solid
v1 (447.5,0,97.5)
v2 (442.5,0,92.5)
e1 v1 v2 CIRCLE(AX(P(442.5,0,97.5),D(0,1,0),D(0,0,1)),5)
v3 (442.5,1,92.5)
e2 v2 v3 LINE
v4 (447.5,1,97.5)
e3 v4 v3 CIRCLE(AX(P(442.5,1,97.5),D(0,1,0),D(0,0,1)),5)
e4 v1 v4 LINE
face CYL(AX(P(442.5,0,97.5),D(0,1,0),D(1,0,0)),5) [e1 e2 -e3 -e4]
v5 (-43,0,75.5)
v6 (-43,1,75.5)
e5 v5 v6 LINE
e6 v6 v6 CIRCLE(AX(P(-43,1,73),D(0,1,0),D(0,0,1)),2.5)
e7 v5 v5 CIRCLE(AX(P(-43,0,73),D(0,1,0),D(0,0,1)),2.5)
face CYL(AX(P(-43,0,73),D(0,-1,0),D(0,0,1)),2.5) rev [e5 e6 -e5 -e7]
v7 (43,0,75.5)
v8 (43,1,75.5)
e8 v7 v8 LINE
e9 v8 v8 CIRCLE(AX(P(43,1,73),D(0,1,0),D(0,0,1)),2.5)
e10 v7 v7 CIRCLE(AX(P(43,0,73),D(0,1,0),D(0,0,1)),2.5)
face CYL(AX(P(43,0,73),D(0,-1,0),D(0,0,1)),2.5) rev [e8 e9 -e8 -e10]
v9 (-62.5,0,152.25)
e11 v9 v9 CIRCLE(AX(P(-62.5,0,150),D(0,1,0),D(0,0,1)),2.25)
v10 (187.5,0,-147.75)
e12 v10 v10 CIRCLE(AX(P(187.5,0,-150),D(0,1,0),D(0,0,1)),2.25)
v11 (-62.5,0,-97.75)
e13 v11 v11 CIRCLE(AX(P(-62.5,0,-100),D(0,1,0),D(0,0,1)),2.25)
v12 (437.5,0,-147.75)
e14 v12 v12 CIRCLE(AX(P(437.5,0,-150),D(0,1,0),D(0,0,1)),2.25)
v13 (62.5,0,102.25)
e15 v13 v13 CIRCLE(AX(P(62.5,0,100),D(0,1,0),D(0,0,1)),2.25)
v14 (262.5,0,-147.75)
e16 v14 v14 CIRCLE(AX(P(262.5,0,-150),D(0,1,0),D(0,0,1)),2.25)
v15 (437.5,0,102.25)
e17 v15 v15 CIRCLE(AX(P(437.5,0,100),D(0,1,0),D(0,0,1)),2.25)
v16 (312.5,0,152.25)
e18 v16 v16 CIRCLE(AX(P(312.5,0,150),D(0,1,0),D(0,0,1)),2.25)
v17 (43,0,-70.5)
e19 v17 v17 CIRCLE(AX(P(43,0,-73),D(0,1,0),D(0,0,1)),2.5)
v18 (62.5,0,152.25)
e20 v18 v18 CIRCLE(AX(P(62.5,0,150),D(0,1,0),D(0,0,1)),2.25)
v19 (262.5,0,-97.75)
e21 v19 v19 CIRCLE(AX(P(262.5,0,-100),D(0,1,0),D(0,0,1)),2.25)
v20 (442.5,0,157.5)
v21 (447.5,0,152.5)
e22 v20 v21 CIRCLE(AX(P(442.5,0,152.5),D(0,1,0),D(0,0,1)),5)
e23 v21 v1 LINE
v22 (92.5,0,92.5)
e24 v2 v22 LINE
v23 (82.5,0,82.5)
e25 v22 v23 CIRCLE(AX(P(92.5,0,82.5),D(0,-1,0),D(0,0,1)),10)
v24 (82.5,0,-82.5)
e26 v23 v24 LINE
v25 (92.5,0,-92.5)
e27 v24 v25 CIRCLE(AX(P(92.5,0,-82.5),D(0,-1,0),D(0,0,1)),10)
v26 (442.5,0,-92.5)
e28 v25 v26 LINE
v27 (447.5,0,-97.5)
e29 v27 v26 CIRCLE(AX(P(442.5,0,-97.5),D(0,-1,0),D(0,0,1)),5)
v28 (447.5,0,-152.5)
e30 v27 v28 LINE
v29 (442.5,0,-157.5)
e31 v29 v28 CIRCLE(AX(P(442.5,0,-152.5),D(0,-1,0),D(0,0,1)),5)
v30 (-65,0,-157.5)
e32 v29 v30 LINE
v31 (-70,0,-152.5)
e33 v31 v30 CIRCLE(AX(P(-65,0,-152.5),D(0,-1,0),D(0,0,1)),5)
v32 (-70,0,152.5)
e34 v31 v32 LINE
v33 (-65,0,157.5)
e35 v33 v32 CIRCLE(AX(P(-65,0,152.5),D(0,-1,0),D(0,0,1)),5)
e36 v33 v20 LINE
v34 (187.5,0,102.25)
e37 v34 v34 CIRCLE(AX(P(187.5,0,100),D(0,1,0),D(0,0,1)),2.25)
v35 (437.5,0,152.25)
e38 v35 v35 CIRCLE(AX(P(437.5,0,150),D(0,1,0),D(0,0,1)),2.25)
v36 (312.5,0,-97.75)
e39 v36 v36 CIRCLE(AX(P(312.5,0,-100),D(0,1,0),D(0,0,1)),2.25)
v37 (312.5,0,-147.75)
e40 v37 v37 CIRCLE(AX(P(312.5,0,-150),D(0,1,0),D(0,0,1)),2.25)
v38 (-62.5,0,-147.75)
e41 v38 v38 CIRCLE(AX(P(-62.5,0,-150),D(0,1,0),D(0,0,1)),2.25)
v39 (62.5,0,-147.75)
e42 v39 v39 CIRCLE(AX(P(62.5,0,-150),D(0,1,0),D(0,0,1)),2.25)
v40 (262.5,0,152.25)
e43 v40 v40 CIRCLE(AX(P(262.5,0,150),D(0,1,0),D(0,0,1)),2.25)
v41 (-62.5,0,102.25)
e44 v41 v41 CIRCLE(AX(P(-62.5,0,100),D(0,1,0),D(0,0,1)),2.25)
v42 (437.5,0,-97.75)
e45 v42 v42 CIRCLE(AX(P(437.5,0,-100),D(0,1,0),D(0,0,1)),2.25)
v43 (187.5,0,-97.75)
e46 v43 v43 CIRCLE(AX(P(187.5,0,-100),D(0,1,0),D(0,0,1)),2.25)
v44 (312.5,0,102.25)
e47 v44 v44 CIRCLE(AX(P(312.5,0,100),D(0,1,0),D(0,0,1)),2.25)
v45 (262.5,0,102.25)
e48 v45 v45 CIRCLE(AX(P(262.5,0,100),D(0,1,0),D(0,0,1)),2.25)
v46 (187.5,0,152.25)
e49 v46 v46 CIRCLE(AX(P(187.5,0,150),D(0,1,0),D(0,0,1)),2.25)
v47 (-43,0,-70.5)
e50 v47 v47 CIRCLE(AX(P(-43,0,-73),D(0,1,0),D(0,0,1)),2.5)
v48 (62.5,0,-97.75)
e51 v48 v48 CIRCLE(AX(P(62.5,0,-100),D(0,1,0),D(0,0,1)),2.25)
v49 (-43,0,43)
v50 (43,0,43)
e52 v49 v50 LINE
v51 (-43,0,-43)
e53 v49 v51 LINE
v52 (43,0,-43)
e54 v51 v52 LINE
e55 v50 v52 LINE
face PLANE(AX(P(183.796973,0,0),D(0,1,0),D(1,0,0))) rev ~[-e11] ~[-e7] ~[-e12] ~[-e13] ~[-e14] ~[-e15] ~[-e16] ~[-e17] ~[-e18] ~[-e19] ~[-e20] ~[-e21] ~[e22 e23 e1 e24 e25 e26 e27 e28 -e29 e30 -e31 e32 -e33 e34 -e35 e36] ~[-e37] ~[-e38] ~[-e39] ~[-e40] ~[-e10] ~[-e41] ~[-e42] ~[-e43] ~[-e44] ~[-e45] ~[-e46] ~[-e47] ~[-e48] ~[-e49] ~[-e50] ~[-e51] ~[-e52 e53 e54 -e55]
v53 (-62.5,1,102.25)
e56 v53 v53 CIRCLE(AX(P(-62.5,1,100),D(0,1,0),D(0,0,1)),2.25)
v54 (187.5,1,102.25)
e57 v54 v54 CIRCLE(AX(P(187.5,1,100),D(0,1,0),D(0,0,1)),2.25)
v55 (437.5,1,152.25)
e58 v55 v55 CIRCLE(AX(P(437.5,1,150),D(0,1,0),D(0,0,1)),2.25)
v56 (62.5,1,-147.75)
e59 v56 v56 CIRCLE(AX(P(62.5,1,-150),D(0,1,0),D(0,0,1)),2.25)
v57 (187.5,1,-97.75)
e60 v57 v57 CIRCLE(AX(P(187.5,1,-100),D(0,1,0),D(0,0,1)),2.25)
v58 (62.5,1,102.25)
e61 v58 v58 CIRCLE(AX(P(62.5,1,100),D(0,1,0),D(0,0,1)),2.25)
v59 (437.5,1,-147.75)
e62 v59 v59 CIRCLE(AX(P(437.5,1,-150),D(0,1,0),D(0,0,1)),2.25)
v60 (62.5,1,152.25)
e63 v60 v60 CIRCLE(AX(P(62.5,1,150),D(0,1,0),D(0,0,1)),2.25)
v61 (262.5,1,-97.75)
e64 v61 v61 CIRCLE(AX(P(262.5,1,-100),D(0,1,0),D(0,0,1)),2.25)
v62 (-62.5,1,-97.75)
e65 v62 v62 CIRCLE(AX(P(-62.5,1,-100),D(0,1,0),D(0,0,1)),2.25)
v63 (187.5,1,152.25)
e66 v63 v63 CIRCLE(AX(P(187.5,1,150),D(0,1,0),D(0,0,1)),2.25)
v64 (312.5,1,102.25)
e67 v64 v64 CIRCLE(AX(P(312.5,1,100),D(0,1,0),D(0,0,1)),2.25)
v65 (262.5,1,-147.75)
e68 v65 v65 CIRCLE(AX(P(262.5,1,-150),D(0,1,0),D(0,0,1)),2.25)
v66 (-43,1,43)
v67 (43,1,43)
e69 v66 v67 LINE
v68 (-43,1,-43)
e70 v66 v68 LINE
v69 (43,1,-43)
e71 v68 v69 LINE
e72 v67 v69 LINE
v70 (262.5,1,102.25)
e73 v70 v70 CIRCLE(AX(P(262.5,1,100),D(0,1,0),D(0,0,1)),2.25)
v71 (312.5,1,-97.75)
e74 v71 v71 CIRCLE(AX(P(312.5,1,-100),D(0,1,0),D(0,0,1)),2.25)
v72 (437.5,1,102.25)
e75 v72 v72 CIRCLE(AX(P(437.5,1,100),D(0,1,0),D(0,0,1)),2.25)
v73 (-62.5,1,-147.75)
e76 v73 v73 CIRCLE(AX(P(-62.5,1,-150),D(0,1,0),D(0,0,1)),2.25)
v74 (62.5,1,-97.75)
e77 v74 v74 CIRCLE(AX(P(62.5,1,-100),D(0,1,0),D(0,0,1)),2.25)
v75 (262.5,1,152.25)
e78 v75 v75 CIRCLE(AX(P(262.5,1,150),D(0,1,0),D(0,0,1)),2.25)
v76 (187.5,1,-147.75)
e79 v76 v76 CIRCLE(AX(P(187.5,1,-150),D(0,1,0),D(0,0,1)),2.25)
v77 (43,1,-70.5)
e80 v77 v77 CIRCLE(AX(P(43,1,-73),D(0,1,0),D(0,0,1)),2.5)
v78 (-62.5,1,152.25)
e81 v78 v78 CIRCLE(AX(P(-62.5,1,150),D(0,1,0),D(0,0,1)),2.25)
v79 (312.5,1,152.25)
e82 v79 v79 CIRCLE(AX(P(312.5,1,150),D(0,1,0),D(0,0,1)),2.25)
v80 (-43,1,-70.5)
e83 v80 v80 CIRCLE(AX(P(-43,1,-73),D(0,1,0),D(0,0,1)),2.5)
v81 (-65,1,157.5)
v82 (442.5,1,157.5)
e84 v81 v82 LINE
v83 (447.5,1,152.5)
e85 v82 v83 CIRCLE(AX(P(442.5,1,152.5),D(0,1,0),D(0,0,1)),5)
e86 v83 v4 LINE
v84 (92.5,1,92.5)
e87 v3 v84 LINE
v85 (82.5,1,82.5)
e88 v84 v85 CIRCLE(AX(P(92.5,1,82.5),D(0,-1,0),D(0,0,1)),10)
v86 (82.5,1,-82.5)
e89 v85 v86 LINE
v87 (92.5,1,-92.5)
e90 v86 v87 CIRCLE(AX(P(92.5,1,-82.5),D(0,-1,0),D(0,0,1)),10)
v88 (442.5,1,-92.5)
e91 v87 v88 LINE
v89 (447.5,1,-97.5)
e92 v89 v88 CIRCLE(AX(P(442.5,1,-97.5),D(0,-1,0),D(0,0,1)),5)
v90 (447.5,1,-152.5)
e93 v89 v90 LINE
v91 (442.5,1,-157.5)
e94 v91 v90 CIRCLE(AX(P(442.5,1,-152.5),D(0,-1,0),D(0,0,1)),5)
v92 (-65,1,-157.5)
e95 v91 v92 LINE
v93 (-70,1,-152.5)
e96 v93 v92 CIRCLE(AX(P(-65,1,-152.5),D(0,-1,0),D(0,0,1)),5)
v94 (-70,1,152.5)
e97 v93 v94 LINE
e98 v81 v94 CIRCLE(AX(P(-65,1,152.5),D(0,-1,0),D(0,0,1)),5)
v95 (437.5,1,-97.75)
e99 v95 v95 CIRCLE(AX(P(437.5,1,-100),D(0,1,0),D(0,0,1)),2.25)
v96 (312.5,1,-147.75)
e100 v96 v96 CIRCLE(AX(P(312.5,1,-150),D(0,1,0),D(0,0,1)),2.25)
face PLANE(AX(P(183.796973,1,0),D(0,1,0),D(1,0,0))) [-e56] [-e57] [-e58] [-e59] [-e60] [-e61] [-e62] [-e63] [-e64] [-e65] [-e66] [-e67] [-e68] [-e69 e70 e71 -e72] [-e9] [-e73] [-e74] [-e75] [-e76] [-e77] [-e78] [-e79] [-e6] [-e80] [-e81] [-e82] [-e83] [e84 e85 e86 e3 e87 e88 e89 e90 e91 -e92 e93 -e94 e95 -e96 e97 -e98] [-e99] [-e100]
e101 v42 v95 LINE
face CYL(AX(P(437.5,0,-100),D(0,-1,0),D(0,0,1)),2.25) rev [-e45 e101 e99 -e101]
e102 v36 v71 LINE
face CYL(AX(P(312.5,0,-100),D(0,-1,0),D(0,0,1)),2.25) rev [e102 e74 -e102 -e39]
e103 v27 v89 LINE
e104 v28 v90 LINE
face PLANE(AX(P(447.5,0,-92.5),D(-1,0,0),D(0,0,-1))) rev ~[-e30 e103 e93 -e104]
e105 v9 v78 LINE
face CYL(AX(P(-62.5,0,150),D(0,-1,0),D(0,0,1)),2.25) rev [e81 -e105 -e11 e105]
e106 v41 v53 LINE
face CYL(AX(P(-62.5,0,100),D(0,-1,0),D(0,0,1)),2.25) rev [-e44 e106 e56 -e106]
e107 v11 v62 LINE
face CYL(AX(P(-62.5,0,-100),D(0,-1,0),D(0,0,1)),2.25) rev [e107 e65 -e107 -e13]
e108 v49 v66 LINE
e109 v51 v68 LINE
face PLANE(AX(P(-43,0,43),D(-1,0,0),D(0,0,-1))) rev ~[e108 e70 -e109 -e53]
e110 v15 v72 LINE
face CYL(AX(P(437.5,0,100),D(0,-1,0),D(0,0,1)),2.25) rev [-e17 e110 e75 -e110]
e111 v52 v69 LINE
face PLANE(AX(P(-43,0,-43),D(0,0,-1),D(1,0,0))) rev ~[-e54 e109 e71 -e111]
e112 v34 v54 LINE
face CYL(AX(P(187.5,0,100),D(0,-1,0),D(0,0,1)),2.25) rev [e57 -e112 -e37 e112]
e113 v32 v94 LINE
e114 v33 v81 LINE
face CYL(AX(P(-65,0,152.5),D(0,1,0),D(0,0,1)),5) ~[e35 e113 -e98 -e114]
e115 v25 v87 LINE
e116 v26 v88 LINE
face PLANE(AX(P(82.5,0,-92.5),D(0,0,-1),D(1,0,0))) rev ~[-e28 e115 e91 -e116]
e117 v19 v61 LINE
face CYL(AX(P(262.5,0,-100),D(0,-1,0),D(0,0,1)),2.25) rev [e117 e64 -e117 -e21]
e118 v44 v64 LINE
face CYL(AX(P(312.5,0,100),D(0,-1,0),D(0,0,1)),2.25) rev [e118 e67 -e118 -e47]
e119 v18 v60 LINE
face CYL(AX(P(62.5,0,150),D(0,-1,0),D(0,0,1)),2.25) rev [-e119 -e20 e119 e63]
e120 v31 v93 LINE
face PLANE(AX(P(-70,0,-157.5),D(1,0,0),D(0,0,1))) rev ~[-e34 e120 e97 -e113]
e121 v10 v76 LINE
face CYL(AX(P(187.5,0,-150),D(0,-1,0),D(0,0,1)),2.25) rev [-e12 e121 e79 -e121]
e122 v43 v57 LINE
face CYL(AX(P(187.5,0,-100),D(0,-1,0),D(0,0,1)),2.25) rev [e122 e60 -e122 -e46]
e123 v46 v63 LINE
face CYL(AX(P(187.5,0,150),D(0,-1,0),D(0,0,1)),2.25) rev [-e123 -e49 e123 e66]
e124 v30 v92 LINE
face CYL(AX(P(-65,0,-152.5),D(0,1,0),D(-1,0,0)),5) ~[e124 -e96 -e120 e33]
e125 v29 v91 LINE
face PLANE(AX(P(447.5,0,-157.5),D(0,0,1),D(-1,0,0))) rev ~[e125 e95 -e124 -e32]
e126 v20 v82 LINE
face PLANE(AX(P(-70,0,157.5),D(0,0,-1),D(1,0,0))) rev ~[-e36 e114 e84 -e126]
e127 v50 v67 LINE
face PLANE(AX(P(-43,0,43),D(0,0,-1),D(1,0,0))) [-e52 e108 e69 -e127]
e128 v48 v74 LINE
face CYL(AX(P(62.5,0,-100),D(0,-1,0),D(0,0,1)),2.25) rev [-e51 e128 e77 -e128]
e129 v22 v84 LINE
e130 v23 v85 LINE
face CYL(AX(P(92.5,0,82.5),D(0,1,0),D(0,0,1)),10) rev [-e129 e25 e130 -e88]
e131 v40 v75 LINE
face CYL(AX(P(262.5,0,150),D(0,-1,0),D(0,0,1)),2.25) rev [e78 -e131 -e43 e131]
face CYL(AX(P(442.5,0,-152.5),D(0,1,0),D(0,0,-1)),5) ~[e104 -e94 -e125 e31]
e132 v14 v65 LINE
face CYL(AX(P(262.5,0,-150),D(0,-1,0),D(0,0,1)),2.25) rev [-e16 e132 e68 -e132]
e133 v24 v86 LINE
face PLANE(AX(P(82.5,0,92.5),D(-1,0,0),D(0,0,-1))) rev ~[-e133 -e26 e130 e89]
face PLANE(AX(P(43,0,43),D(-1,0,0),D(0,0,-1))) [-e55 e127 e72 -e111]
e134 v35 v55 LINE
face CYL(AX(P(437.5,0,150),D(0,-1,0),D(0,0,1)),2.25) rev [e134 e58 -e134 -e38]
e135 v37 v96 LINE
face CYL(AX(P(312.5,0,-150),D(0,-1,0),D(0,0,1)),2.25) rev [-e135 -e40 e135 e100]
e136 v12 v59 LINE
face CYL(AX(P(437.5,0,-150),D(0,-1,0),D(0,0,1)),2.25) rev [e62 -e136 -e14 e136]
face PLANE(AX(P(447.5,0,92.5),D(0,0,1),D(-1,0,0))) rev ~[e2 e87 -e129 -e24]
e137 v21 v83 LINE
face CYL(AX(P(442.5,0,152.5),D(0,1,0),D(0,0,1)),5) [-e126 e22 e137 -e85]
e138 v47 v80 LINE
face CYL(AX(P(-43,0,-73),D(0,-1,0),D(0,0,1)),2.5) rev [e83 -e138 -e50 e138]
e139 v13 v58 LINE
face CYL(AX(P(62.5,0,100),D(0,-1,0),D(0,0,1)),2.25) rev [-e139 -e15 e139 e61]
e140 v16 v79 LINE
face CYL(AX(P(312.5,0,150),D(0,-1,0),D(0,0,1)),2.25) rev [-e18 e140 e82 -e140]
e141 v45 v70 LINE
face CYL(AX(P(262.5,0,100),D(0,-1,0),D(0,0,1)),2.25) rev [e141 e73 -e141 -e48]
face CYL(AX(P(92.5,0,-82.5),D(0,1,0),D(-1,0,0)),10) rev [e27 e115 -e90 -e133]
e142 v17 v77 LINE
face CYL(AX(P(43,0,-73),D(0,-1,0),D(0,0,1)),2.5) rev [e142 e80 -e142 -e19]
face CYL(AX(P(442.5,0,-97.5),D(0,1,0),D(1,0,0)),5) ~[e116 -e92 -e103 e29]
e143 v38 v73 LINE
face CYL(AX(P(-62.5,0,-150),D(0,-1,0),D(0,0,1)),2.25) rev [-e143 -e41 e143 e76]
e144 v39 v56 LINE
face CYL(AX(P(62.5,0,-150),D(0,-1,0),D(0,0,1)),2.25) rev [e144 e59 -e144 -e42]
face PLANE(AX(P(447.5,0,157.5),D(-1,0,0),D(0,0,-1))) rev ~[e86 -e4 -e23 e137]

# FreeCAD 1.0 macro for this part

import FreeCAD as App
import Part
import Sketcher
from FreeCAD import Vector
Q = App.Units.Quantity


def edges_at(feature, points):
    """Names of the edges that pass closest to the given points."""
    edges = feature.Shape.Edges
    near = lambda p: min(range(len(edges)), key=lambda i: edges[i].distToShape(Part.Vertex(*p))[0])
    return sorted({f"Edge{near(p) + 1}" for p in points})

doc = App.newDocument("Part")
body = doc.addObject("PartDesign::Body", "Body")

sketch1 = body.newObject("Sketcher::SketchObject", "Sketch")
sketch1.AttachmentSupport = (doc.getObject("XZ_Plane"), [""])
sketch1.MapMode = "FlatFace"
sketch1.addGeometry([
    Part.LineSegment(Vector(-70, 157.5, 0), Vector(447.5, 157.5, 0)),
    Part.LineSegment(Vector(447.5, 157.5, 0), Vector(447.5, 92.5, 0)),
    Part.LineSegment(Vector(447.5, 92.5, 0), Vector(82.5, 92.5, 0)),
    Part.LineSegment(Vector(82.5, 92.5, 0), Vector(82.5, -92.5, 0)),
    Part.LineSegment(Vector(82.5, -92.5, 0), Vector(447.5, -92.5, 0)),
    Part.LineSegment(Vector(447.5, -92.5, 0), Vector(447.5, -157.5, 0)),
    Part.LineSegment(Vector(447.5, -157.5, 0), Vector(-70, -157.5, 0)),
    Part.LineSegment(Vector(-70, -157.5, 0), Vector(-70, 157.5, 0)),
    Part.Circle(Vector(-62.5, 150, 0), Vector(0, 0, 1), 2.25),
    Part.Circle(Vector(-62.5, 100, 0), Vector(0, 0, 1), 2.25),
    Part.Circle(Vector(62.5, 150, 0), Vector(0, 0, 1), 2.25),
    Part.Circle(Vector(62.5, 100, 0), Vector(0, 0, 1), 2.25),
    Part.Circle(Vector(-43, 73, 0), Vector(0, 0, 1), 2.5),
    Part.Circle(Vector(43, 73, 0), Vector(0, 0, 1), 2.5),
    Part.Circle(Vector(187.5, 150, 0), Vector(0, 0, 1), 2.25),
    Part.Circle(Vector(262.5, 150, 0), Vector(0, 0, 1), 2.25),
    Part.Circle(Vector(312.5, 150, 0), Vector(0, 0, 1), 2.25),
    Part.Circle(Vector(187.5, 100, 0), Vector(0, 0, 1), 2.25),
    Part.Circle(Vector(262.5, 100, 0), Vector(0, 0, 1), 2.25),
    Part.Circle(Vector(312.5, 100, 0), Vector(0, 0, 1), 2.25),
    Part.Circle(Vector(437.5, 150, 0), Vector(0, 0, 1), 2.25),
    Part.Circle(Vector(437.5, 100, 0), Vector(0, 0, 1), 2.25),
    Part.LineSegment(Vector(43, 43, 0), Vector(-43, 43, 0)),
    Part.LineSegment(Vector(-43, 43, 0), Vector(-43, -43, 0)),
    Part.LineSegment(Vector(-43, -43, 0), Vector(43, -43, 0)),
    Part.LineSegment(Vector(43, -43, 0), Vector(43, 43, 0)),
    Part.Circle(Vector(-43, -73, 0), Vector(0, 0, 1), 2.5),
    Part.Circle(Vector(43, -73, 0), Vector(0, 0, 1), 2.5),
    Part.Circle(Vector(-62.5, -100, 0), Vector(0, 0, 1), 2.25),
    Part.Circle(Vector(-62.5, -150, 0), Vector(0, 0, 1), 2.25),
    Part.Circle(Vector(62.5, -100, 0), Vector(0, 0, 1), 2.25),
    Part.Circle(Vector(62.5, -150, 0), Vector(0, 0, 1), 2.25),
    Part.Circle(Vector(187.5, -100, 0), Vector(0, 0, 1), 2.25),
    Part.Circle(Vector(262.5, -100, 0), Vector(0, 0, 1), 2.25),
    Part.Circle(Vector(312.5, -100, 0), Vector(0, 0, 1), 2.25),
    Part.Circle(Vector(187.5, -150, 0), Vector(0, 0, 1), 2.25),
    Part.Circle(Vector(262.5, -150, 0), Vector(0, 0, 1), 2.25),
    Part.Circle(Vector(312.5, -150, 0), Vector(0, 0, 1), 2.25),
    Part.Circle(Vector(437.5, -100, 0), Vector(0, 0, 1), 2.25),
    Part.Circle(Vector(437.5, -150, 0), Vector(0, 0, 1), 2.25),
], False)
sketch1.addConstraint([
    Sketcher.Constraint("Coincident", 0, 2, 1, 1),
    Sketcher.Constraint("Coincident", 1, 2, 2, 1),
    Sketcher.Constraint("Coincident", 2, 2, 3, 1),
    Sketcher.Constraint("Coincident", 3, 2, 4, 1),
    Sketcher.Constraint("Coincident", 4, 2, 5, 1),
    Sketcher.Constraint("Coincident", 5, 2, 6, 1),
    Sketcher.Constraint("Coincident", 6, 2, 7, 1),
    Sketcher.Constraint("Coincident", 7, 2, 0, 1),
    Sketcher.Constraint("Coincident", 22, 2, 23, 1),
    Sketcher.Constraint("Coincident", 23, 2, 24, 1),
    Sketcher.Constraint("Coincident", 24, 2, 25, 1),
    Sketcher.Constraint("Coincident", 25, 2, 22, 1),
    Sketcher.Constraint("Horizontal", 0),
    Sketcher.Constraint("Vertical", 1),
    Sketcher.Constraint("Horizontal", 2),
    Sketcher.Constraint("Vertical", 3),
    Sketcher.Constraint("Horizontal", 4),
    Sketcher.Constraint("Vertical", 5),
    Sketcher.Constraint("Horizontal", 6),
    Sketcher.Constraint("Vertical", 7),
    Sketcher.Constraint("Horizontal", 22),
    Sketcher.Constraint("Vertical", 23),
    Sketcher.Constraint("Horizontal", 24),
    Sketcher.Constraint("Vertical", 25),
    Sketcher.Constraint("Equal", 8, 9),
    Sketcher.Constraint("Equal", 9, 10),
    Sketcher.Constraint("Equal", 10, 11),
    Sketcher.Constraint("Equal", 12, 13),
    Sketcher.Constraint("Equal", 11, 14),
    Sketcher.Constraint("Equal", 14, 15),
    Sketcher.Constraint("Equal", 15, 16),
    Sketcher.Constraint("Equal", 16, 17),
    Sketcher.Constraint("Equal", 17, 18),
    Sketcher.Constraint("Equal", 18, 19),
    Sketcher.Constraint("Equal", 19, 20),
    Sketcher.Constraint("Equal", 20, 21),
    Sketcher.Constraint("Equal", 13, 26),
    Sketcher.Constraint("Equal", 26, 27),
    Sketcher.Constraint("Equal", 21, 28),
    Sketcher.Constraint("Equal", 28, 29),
    Sketcher.Constraint("Equal", 29, 30),
    Sketcher.Constraint("Equal", 30, 31),
    Sketcher.Constraint("Equal", 31, 32),
    Sketcher.Constraint("Equal", 32, 33),
    Sketcher.Constraint("Equal", 33, 34),
    Sketcher.Constraint("Equal", 34, 35),
    Sketcher.Constraint("Equal", 35, 36),
    Sketcher.Constraint("Equal", 36, 37),
    Sketcher.Constraint("Equal", 37, 38),
    Sketcher.Constraint("Equal", 38, 39),
    Sketcher.Constraint("Symmetric", 13, 3, 26, 3, -1, 1),
    Sketcher.Constraint("Symmetric", 12, 3, 27, 3, -1, 1),
    Sketcher.Constraint("Symmetric", 11, 3, 28, 3, -1, 1),
    Sketcher.Constraint("Symmetric", 10, 3, 29, 3, -1, 1),
    Sketcher.Constraint("Symmetric", 9, 3, 30, 3, -1, 1),
    Sketcher.Constraint("Symmetric", 8, 3, 31, 3, -1, 1),
    Sketcher.Constraint("Symmetric", 22, 2, 24, 2, -1, 1),
    Sketcher.Constraint("Symmetric", 8, 3, 10, 3, -2),
    Sketcher.Constraint("Symmetric", 9, 3, 11, 3, -2),
    Sketcher.Constraint("Symmetric", 12, 3, 13, 3, -2),
    Sketcher.Constraint("Symmetric", 17, 3, 32, 3, -1),
    Sketcher.Constraint("Symmetric", 18, 3, 33, 3, -1),
    Sketcher.Constraint("Symmetric", 19, 3, 34, 3, -1),
    Sketcher.Constraint("Symmetric", 14, 3, 35, 3, -1),
    Sketcher.Constraint("Symmetric", 15, 3, 36, 3, -1),
    Sketcher.Constraint("Symmetric", 16, 3, 37, 3, -1),
    Sketcher.Constraint("Symmetric", 21, 3, 38, 3, -1),
    Sketcher.Constraint("Symmetric", 20, 3, 39, 3, -1),
    Sketcher.Constraint("Symmetric", 1, 2, 4, 2, -1),
    Sketcher.Constraint("Horizontal", 10, 3, 14, 3),
    Sketcher.Constraint("Horizontal", 14, 3, 15, 3),
    Sketcher.Constraint("Horizontal", 15, 3, 16, 3),
    Sketcher.Constraint("Horizontal", 11, 3, 17, 3),
    Sketcher.Constraint("Horizontal", 17, 3, 18, 3),
    Sketcher.Constraint("Horizontal", 18, 3, 19, 3),
    Sketcher.Constraint("Horizontal", 16, 3, 20, 3),
    Sketcher.Constraint("Horizontal", 19, 3, 21, 3),
    Sketcher.Constraint("Vertical", 8, 3, 9, 3),
    Sketcher.Constraint("Vertical", 14, 3, 17, 3),
    Sketcher.Constraint("Vertical", 15, 3, 18, 3),
    Sketcher.Constraint("Vertical", 16, 3, 19, 3),
    Sketcher.Constraint("Vertical", 20, 3, 21, 3),
    Sketcher.Constraint("Vertical", 26, 3, 22, 2),
    Sketcher.Constraint("Equal", 1, 5),
    Sketcher.Constraint("Equal", 24, 23),
    Sketcher.Constraint("Diameter", 12, Q("5 mm")),
    Sketcher.Constraint("Diameter", 8, Q("4.5 mm")),
    Sketcher.Constraint("DistanceX", 2, 2, 2, 1, Q("365 mm")),
    Sketcher.Constraint("DistanceX", 22, 2, 22, 1, Q("86 mm")),
    Sketcher.Constraint("DistanceY", 1, 2, 1, 1, Q("65 mm")),
    Sketcher.Constraint("DistanceY", 3, 2, 3, 1, Q("185 mm")),
    Sketcher.Constraint("DistanceX", 0, 1, 0, 2, Q("517.5 mm")),
    Sketcher.Constraint("DistanceY", -1, 1, 8, 3, Q("150 mm")),
    Sketcher.Constraint("DistanceY", -1, 1, 9, 3, Q("100 mm")),
    Sketcher.Constraint("DistanceY", -1, 1, 12, 3, Q("73 mm")),
    Sketcher.Constraint("DistanceX", 6, 2, -1, 1, Q("70 mm")),
    Sketcher.Constraint("DistanceX", 8, 3, 10, 3, Q("125 mm")),
    Sketcher.Constraint("DistanceX", 10, 3, 14, 3, Q("125 mm")),
    Sketcher.Constraint("DistanceX", 14, 3, 15, 3, Q("75 mm")),
    Sketcher.Constraint("DistanceX", 15, 3, 16, 3, Q("50 mm")),
    Sketcher.Constraint("DistanceX", 16, 3, 20, 3, Q("125 mm")),
])
pad1 = body.newObject("PartDesign::Pad", "Pad")
pad1.Profile = sketch1
pad1.Length = 1
pad1.Reversed = True
doc.recompute()

fillet = body.newObject("PartDesign::Fillet", "Fillet")
fillet.Base = (pad1, edges_at(pad1, [
    (447.5, 0.5, 92.5),
    (447.5, 0.5, 157.5),
    (-70, 0.5, 157.5),
    (-70, 0.5, -157.5),
    (447.5, 0.5, -157.5),
    (447.5, 0.5, -92.5),
]))
fillet.Radius = 5
doc.recompute()

fillet2 = body.newObject("PartDesign::Fillet", "Fillet001")
fillet2.Base = (fillet, edges_at(fillet, [(82.5, 0.5, -92.5), (82.5, 0.5, 92.5)]))
fillet2.Radius = 10

doc.recompute()
